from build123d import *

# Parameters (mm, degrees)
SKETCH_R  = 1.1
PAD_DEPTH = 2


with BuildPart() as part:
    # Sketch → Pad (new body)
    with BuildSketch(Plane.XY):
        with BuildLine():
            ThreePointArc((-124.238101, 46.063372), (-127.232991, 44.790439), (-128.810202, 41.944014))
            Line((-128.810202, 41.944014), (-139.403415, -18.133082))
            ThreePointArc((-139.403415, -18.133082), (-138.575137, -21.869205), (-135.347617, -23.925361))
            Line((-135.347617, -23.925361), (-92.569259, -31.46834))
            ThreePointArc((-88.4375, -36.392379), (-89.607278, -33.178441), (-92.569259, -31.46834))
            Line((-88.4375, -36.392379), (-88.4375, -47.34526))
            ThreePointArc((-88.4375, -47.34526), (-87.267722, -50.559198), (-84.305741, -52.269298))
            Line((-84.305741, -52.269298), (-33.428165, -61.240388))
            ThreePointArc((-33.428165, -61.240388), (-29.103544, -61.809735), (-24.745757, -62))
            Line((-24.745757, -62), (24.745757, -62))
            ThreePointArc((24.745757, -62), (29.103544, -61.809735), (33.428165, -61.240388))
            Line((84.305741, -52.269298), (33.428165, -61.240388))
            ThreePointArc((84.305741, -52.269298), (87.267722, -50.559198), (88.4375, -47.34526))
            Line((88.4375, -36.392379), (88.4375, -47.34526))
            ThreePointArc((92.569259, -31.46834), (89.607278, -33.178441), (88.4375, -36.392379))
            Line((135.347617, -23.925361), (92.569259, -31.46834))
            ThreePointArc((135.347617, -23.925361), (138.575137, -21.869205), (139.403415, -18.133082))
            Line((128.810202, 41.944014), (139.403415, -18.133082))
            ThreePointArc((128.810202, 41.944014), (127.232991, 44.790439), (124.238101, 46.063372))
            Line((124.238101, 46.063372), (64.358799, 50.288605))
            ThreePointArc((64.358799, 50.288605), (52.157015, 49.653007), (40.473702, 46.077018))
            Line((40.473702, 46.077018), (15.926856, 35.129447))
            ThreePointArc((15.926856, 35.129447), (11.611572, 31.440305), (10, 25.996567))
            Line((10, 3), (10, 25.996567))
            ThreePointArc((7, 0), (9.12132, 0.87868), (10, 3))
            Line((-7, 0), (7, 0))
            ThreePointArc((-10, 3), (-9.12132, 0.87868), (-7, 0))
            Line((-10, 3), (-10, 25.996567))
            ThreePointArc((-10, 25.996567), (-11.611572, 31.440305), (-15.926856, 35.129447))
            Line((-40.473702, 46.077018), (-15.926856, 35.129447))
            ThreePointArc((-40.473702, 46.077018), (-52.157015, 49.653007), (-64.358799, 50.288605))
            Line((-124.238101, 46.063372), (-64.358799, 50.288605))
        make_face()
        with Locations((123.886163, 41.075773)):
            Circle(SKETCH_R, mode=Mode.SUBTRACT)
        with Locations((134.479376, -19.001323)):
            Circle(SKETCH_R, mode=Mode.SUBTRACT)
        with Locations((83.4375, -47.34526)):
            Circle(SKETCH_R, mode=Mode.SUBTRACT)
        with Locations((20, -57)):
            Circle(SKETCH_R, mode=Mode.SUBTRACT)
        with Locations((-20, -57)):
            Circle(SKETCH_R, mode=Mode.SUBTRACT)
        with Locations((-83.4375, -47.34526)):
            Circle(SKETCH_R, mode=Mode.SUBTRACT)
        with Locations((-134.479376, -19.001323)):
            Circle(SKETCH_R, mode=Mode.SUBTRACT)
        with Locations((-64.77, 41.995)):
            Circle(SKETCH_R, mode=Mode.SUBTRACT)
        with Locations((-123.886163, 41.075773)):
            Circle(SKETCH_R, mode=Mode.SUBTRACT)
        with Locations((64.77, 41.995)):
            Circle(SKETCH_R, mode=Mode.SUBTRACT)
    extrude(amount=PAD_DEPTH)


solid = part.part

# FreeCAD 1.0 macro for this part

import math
import FreeCAD as App
import Part
import Sketcher

V = App.Vector
Q = App.Units.Quantity

doc = App.newDocument("Part")
body = doc.addObject("PartDesign::Body", "Body")

sketch1 = doc.addObject("Sketcher::SketchObject", "Sketch")
body.addObject(sketch1)
sketch1.AttachmentSupport = (doc.XY_Plane, [""])
sketch1.MapMode = "FlatFace"
sketch1.addGeometry(Part.ArcOfCircle(Part.Circle(V(-123.9, 41.1, 0), V(0, 0, 1), 5), math.radians(94), math.radians(170)), False)
sketch1.addGeometry(Part.LineSegment(V(-128.8, 41.9, 0), V(-139.4, -18.1, 0)), False)
sketch1.addGeometry(Part.ArcOfCircle(Part.Circle(V(-134.5, -19, 0), V(0, 0, 1), 5), math.radians(170), math.radians(260)), False)
sketch1.addGeometry(Part.LineSegment(V(-135.3, -23.9, 0), V(-92.6, -31.5, 0)), False)
sketch1.addGeometry(Part.ArcOfCircle(Part.Circle(V(-93.4, -36.4, 0), V(0, 0, 1), 5), math.radians(0), math.radians(80)), False)
sketch1.addGeometry(Part.LineSegment(V(-88.4, -36.4, 0), V(-88.4, -47.3, 0)), False)
sketch1.addGeometry(Part.ArcOfCircle(Part.Circle(V(-83.4, -47.3, 0), V(0, 0, 1), 5), math.radians(180), math.radians(260)), False)
sketch1.addGeometry(Part.LineSegment(V(-84.3, -52.3, 0), V(-33.4, -61.2, 0)), False)
sketch1.addGeometry(Part.ArcOfCircle(Part.Circle(V(-24.7, -12, 0), V(0, 0, 1), 50), math.radians(-100), math.radians(-90)), False)
sketch1.addGeometry(Part.LineSegment(V(-24.7, -62, 0), V(24.7, -62, 0)), False)
sketch1.addGeometry(Part.ArcOfCircle(Part.Circle(V(24.7, -12, 0), V(0, 0, 1), 50), math.radians(-90), math.radians(-80)), False)
sketch1.addGeometry(Part.LineSegment(V(33.4, -61.2, 0), V(84.3, -52.3, 0)), False)
sketch1.addGeometry(Part.ArcOfCircle(Part.Circle(V(83.4, -47.3, 0), V(0, 0, 1), 5), math.radians(-80), math.radians(0)), False)
sketch1.addGeometry(Part.LineSegment(V(88.4, -47.3, 0), V(88.4, -36.4, 0)), False)
sketch1.addGeometry(Part.ArcOfCircle(Part.Circle(V(93.4, -36.4, 0), V(0, 0, 1), 5), math.radians(100), math.radians(180)), False)
sketch1.addGeometry(Part.LineSegment(V(92.6, -31.5, 0), V(135.3, -23.9, 0)), False)
sketch1.addGeometry(Part.ArcOfCircle(Part.Circle(V(134.5, -19, 0), V(0, 0, 1), 5), math.radians(-80), math.radians(10)), False)
sketch1.addGeometry(Part.LineSegment(V(139.4, -18.1, 0), V(128.8, 41.9, 0)), False)
sketch1.addGeometry(Part.ArcOfCircle(Part.Circle(V(123.9, 41.1, 0), V(0, 0, 1), 5), math.radians(10), math.radians(86)), False)
sketch1.addGeometry(Part.LineSegment(V(124.2, 46.1, 0), V(64.4, 50.3, 0)), False)
sketch1.addGeometry(Part.ArcOfCircle(Part.Circle(V(60.8, 0.4, 0), V(0, 0, 1), 50), math.radians(86), math.radians(114)), False)
sketch1.addGeometry(Part.LineSegment(V(40.5, 46.1, 0), V(15.9, 35.1, 0)), False)
sketch1.addGeometry(Part.ArcOfCircle(Part.Circle(V(20, 26, 0), V(0, 0, 1), 10), math.radians(114), math.radians(180)), False)
sketch1.addGeometry(Part.LineSegment(V(10, 26, 0), V(10, 3, 0)), False)
sketch1.addGeometry(Part.ArcOfCircle(Part.Circle(V(7, 3, 0), V(0, 0, 1), 3), math.radians(-90), math.radians(0)), False)
sketch1.addGeometry(Part.LineSegment(V(7, 0, 0), V(-7, 0, 0)), False)
sketch1.addGeometry(Part.ArcOfCircle(Part.Circle(V(-7, 3, 0), V(0, 0, 1), 3), math.radians(-180), math.radians(-90)), False)
sketch1.addGeometry(Part.LineSegment(V(-10, 3, 0), V(-10, 26, 0)), False)
sketch1.addGeometry(Part.ArcOfCircle(Part.Circle(V(-20, 26, 0), V(0, 0, 1), 10), math.radians(0), math.radians(66)), False)
sketch1.addGeometry(Part.LineSegment(V(-15.9, 35.1, 0), V(-40.5, 46.1, 0)), False)
sketch1.addGeometry(Part.ArcOfCircle(Part.Circle(V(-60.8, 0.4, 0), V(0, 0, 1), 50), math.radians(66), math.radians(94)), False)
sketch1.addGeometry(Part.LineSegment(V(-64.4, 50.3, 0), V(-124.2, 46.1, 0)), False)
sketch1.addGeometry(Part.Circle(V(-83.4, -47.3, 0), V(0, 0, 1), 1.1), False)
sketch1.addGeometry(Part.Circle(V(-20, -57, 0), V(0, 0, 1), 1.1), False)
sketch1.addGeometry(Part.Circle(V(-134.5, -19, 0), V(0, 0, 1), 1.1), False)
sketch1.addGeometry(Part.Circle(V(20, -57, 0), V(0, 0, 1), 1.1), False)
sketch1.addGeometry(Part.Circle(V(83.4, -47.3, 0), V(0, 0, 1), 1.1), False)
sketch1.addGeometry(Part.Circle(V(134.5, -19, 0), V(0, 0, 1), 1.1), False)
sketch1.addGeometry(Part.Circle(V(-123.9, 41.1, 0), V(0, 0, 1), 1.1), False)
sketch1.addGeometry(Part.Circle(V(-64.8, 42, 0), V(0, 0, 1), 1.1), False)
sketch1.addGeometry(Part.Circle(V(64.8, 42, 0), V(0, 0, 1), 1.1), False)
sketch1.addGeometry(Part.Circle(V(123.9, 41.1, 0), V(0, 0, 1), 1.1), False)
sketch1.addConstraint(Sketcher.Constraint("Tangent", 0, 2, 1, 1))
sketch1.addConstraint(Sketcher.Constraint("Tangent", 1, 2, 2, 1))
sketch1.addConstraint(Sketcher.Constraint("Tangent", 2, 2, 3, 1))
sketch1.addConstraint(Sketcher.Constraint("Tangent", 3, 2, 4, 2))
sketch1.addConstraint(Sketcher.Constraint("Tangent", 4, 1, 5, 1))
sketch1.addConstraint(Sketcher.Constraint("Tangent", 5, 2, 6, 1))
sketch1.addConstraint(Sketcher.Constraint("Tangent", 6, 2, 7, 1))
sketch1.addConstraint(Sketcher.Constraint("Tangent", 7, 2, 8, 1))
sketch1.addConstraint(Sketcher.Constraint("Tangent", 8, 2, 9, 1))
sketch1.addConstraint(Sketcher.Constraint("Tangent", 9, 2, 10, 1))
sketch1.addConstraint(Sketcher.Constraint("Tangent", 10, 2, 11, 1))
sketch1.addConstraint(Sketcher.Constraint("Tangent", 11, 2, 12, 1))
sketch1.addConstraint(Sketcher.Constraint("Tangent", 12, 2, 13, 1))
sketch1.addConstraint(Sketcher.Constraint("Tangent", 13, 2, 14, 2))
sketch1.addConstraint(Sketcher.Constraint("Tangent", 14, 1, 15, 1))
sketch1.addConstraint(Sketcher.Constraint("Tangent", 15, 2, 16, 1))
sketch1.addConstraint(Sketcher.Constraint("Tangent", 16, 2, 17, 1))
sketch1.addConstraint(Sketcher.Constraint("Tangent", 17, 2, 18, 1))
sketch1.addConstraint(Sketcher.Constraint("Tangent", 18, 2, 19, 1))
sketch1.addConstraint(Sketcher.Constraint("Tangent", 19, 2, 20, 1))
sketch1.addConstraint(Sketcher.Constraint("Tangent", 20, 2, 21, 1))
sketch1.addConstraint(Sketcher.Constraint("Tangent", 21, 2, 22, 1))
sketch1.addConstraint(Sketcher.Constraint("Tangent", 22, 2, 23, 1))
sketch1.addConstraint(Sketcher.Constraint("Tangent", 23, 2, 24, 2))
sketch1.addConstraint(Sketcher.Constraint("Tangent", 24, 1, 25, 1))
sketch1.addConstraint(Sketcher.Constraint("Tangent", 25, 2, 26, 2))
sketch1.addConstraint(Sketcher.Constraint("Tangent", 26, 1, 27, 1))
sketch1.addConstraint(Sketcher.Constraint("Tangent", 27, 2, 28, 1))
sketch1.addConstraint(Sketcher.Constraint("Tangent", 28, 2, 29, 1))
sketch1.addConstraint(Sketcher.Constraint("Tangent", 29, 2, 30, 1))
sketch1.addConstraint(Sketcher.Constraint("Tangent", 30, 2, 31, 1))
sketch1.addConstraint(Sketcher.Constraint("Tangent", 31, 2, 0, 1))
sketch1.addConstraint(Sketcher.Constraint("Vertical", 5))
sketch1.addConstraint(Sketcher.Constraint("Horizontal", 9))
sketch1.addConstraint(Sketcher.Constraint("Vertical", 13))
sketch1.addConstraint(Sketcher.Constraint("Vertical", 23))
sketch1.addConstraint(Sketcher.Constraint("Horizontal", 25))
sketch1.addConstraint(Sketcher.Constraint("Vertical", 27))
sketch1.addConstraint(Sketcher.Constraint("Coincident", 32, 3, 6, 3))
sketch1.addConstraint(Sketcher.Constraint("Coincident", 34, 3, 2, 3))
sketch1.addConstraint(Sketcher.Constraint("Coincident", 36, 3, 12, 3))
sketch1.addConstraint(Sketcher.Constraint("Coincident", 37, 3, 16, 3))
sketch1.addConstraint(Sketcher.Constraint("Coincident", 38, 3, 0, 3))
sketch1.addConstraint(Sketcher.Constraint("Coincident", 41, 3, 18, 3))
sketch1.addConstraint(Sketcher.Constraint("Equal", 0, 4))
sketch1.addConstraint(Sketcher.Constraint("Equal", 2, 6))
sketch1.addConstraint(Sketcher.Constraint("Equal", 8, 10))
sketch1.addConstraint(Sketcher.Constraint("Equal", 6, 12))
sketch1.addConstraint(Sketcher.Constraint("Equal", 4, 14))
sketch1.addConstraint(Sketcher.Constraint("Equal", 12, 16))
sketch1.addConstraint(Sketcher.Constraint("Equal", 14, 18))
sketch1.addConstraint(Sketcher.Constraint("Equal", 24, 26))
sketch1.addConstraint(Sketcher.Constraint("Equal", 22, 28))
sketch1.addConstraint(Sketcher.Constraint("Equal", 20, 30))
sketch1.addConstraint(Sketcher.Constraint("Equal", 32, 33))
sketch1.addConstraint(Sketcher.Constraint("Equal", 33, 34))
sketch1.addConstraint(Sketcher.Constraint("Equal", 34, 35))
sketch1.addConstraint(Sketcher.Constraint("Equal", 35, 36))
sketch1.addConstraint(Sketcher.Constraint("Equal", 36, 37))
sketch1.addConstraint(Sketcher.Constraint("Equal", 37, 38))
sketch1.addConstraint(Sketcher.Constraint("Equal", 38, 39))
sketch1.addConstraint(Sketcher.Constraint("Equal", 39, 40))
sketch1.addConstraint(Sketcher.Constraint("Equal", 40, 41))
sketch1.addConstraint(Sketcher.Constraint("Symmetric", 24, 1, 25, 2, -1, 1))
sketch1.addConstraint(Sketcher.Constraint("Symmetric", 6, 3, 12, 3, -2))
sketch1.addConstraint(Sketcher.Constraint("Symmetric", 2, 3, 16, 3, -2))
sketch1.addConstraint(Sketcher.Constraint("Symmetric", 0, 3, 18, 3, -2))
sketch1.addConstraint(Sketcher.Constraint("Symmetric", 20, 3, 30, 3, -2))
sketch1.addConstraint(Sketcher.Constraint("Symmetric", 33, 3, 35, 3, -2))
sketch1.addConstraint(Sketcher.Constraint("Symmetric", 39, 3, 40, 3, -2))
sketch1.addConstraint(Sketcher.Constraint("Perpendicular", 1, 3))
sketch1.addConstraint(Sketcher.Constraint("Parallel", 3, 7))
sketch1.addConstraint(Sketcher.Constraint("Parallel", 11, 15))
sketch1.addConstraint(Sketcher.Constraint("Perpendicular", 15, 17))
sketch1.addConstraint(Sketcher.Constraint("Horizontal", 22, 3, 28, 3))
sketch1.addConstraint(Sketcher.Constraint("Radius", 0, Q("5.000001 mm")))
sketch1.addConstraint(Sketcher.Constraint("Radius", 6, Q("4.999999 mm")))
sketch1.addConstraint(Sketcher.Constraint("Radius", 24, Q("3.000001 mm")))
sketch1.addConstraint(Sketcher.Constraint("Diameter", 32, Q("2.2 mm")))
sketch1.addConstraint(Sketcher.Constraint("DistanceX", 25, 2, 25, 1, Q("14 mm")))
sketch1.addConstraint(Sketcher.Constraint("Angle", 1, Q("-100 deg")))
sketch1.addConstraint(Sketcher.Constraint("DistanceX", 33, 3, -1, 1, Q("20 mm")))
sketch1.addConstraint(Sketcher.Constraint("DistanceY", 33, 3, -1, 1, Q("57 mm")))
sketch1.addConstraint(Sketcher.Constraint("DistanceY", 8, 2, -1, 1, Q("62 mm")))
sketch1.addConstraint(Sketcher.Constraint("DistanceX", 24, 3, 22, 3, Q("12.999999 mm")))
sketch1.addConstraint(Sketcher.Constraint("DistanceX", 39, 3, -1, 1, Q("64.77 mm")))
sketch1.addConstraint(Sketcher.Constraint("Radius", 20, Q("49.99998 mm")))
sketch1.addConstraint(Sketcher.Constraint("DistanceY", -1, 1, 39, 3, Q("41.995 mm")))
sketch1.addConstraint(Sketcher.Constraint("Radius", 8, Q("50.000003 mm")))
sketch1.addConstraint(Sketcher.Constraint("DistanceX", 6, 3, 12, 3, Q("166.875002 mm")))
sketch1.addConstraint(Sketcher.Constraint("DistanceY", 5, 2, 5, 1, Q("10.952881 mm")))
sketch1.addConstraint(Sketcher.Constraint("DistanceX", 0, 2, -1, 1, Q("128.810202 mm")))
sketch1.addConstraint(Sketcher.Constraint("DistanceY", 6, 2, -1, 1, Q("52.269298 mm")))
sketch1.addConstraint(Sketcher.Constraint("DistanceX", -1, 1, 18, 2, Q("124.238101 mm")))
sketch1.addConstraint(Sketcher.Constraint("DistanceX", -1, 1, 19, 2, Q("64.358799 mm")))
sketch1.addConstraint(Sketcher.Constraint("DistanceY", 12, 3, 20, 3, Q("47.7579 mm")))
sketch1.addConstraint(Sketcher.Constraint("DistanceY", 23, 2, 23, 1, Q("22.996567 mm")))
pad1 = doc.addObject("PartDesign::Pad", "Pad")
body.addObject(pad1)
pad1.Profile = sketch1
pad1.Length = 2

doc.recompute()
